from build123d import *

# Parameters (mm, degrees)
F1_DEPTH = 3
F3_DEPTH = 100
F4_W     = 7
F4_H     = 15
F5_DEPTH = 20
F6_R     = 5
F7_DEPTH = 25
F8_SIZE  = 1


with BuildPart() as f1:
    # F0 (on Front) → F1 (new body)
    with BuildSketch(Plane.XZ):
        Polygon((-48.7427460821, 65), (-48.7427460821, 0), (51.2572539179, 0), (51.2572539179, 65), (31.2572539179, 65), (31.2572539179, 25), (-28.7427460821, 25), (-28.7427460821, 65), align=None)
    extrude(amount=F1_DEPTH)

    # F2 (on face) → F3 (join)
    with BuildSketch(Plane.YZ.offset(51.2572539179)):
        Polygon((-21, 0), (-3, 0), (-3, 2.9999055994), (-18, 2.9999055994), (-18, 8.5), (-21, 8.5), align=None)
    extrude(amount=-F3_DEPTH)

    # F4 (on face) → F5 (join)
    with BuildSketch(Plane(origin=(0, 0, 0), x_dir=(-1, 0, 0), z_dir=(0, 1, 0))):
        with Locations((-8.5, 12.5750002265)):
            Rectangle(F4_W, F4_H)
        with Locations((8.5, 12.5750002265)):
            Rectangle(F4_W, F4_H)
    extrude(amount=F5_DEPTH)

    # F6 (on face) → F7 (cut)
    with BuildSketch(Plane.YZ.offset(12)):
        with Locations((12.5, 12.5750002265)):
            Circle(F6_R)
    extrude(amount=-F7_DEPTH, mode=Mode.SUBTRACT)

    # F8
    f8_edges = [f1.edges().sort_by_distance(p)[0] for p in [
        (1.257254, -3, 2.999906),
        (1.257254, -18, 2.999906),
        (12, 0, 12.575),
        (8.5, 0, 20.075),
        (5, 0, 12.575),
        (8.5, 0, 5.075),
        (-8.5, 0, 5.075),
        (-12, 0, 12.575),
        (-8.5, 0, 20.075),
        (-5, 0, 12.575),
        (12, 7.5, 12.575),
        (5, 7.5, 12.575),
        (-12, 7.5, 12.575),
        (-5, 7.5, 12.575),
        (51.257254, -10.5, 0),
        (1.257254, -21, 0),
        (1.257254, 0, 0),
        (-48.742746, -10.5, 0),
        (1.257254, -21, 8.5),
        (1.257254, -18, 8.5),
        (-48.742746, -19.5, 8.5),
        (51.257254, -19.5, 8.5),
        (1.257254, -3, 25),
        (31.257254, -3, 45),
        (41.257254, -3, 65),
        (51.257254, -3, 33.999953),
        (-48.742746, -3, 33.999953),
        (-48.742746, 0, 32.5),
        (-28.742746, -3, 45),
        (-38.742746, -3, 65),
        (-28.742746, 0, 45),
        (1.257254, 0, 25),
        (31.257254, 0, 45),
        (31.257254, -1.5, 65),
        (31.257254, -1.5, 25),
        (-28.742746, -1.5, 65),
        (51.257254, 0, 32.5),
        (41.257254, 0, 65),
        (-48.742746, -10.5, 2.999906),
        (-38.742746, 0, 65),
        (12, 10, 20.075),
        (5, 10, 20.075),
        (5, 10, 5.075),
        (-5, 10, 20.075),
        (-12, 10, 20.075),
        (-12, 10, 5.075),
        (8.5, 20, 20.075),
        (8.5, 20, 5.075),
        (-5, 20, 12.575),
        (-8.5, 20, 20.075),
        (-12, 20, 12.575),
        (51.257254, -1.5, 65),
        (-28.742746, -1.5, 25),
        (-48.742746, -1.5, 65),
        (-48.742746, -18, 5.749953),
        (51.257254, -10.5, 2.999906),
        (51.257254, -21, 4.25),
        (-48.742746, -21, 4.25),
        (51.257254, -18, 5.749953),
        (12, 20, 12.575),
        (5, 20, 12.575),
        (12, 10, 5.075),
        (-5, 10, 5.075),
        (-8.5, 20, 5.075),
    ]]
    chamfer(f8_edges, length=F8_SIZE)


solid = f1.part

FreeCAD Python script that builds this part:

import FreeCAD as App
import Part
import Sketcher

V = App.Vector


def add_polygon(sketch, points):
    """Adds a closed chain of lines whose ends are joined by coincident constraints."""
    first, n = sketch.GeometryCount, len(points)
    for a, b in zip(points, points[1:] + points[:1]):
        sketch.addGeometry(Part.LineSegment(App.Vector(*a, 0), App.Vector(*b, 0)), False)
    for i in range(n):
        sketch.addConstraint(Sketcher.Constraint("Coincident", first + i, 2, first + (i + 1) % n, 1))

doc = App.newDocument("Part")
params = doc.addObject("Spreadsheet::Sheet", "Params")
for row, (alias, value) in enumerate([
    ("sketch1_width", "100 mm"),
    ("sketch1_width2", "20 mm"),
    ("sketch1_height", "65 mm"),
    ("sketch1_height2", "40 mm"),
    ("pad1_length", "3 mm"),
    ("sketch2_width", "18 mm"),
    ("sketch2_width2", "15 mm"),
    ("sketch2_height", "8.5 mm"),
    ("pad2_length", "100 mm"),
    ("sketch3_width", "7 mm"),
    ("sketch3_height", "15 mm"),
    ("pad3_length", "20 mm"),
    ("sketch4_diameter", "10 mm"),
    ("pocket1_length", "25 mm"),
    ("chamfer_size", "1 mm"),
], start=1):
    params.set(f"A{row}", alias)
    params.set(f"B{row}", "=" + value)
    params.setAlias(f"B{row}", alias)

body = doc.addObject("PartDesign::Body", "Body")

sketch1 = body.newObject("Sketcher::SketchObject", "Sketch")
sketch1.AttachmentSupport = (doc.getObject("XZ_Plane"), [""])
sketch1.MapMode = "FlatFace"
add_polygon(sketch1, [(-49, 65), (-49, 0), (51, 0), (51, 65), (31, 65), (31, 25), (-29, 25), (-29, 65)])
sketch1.addConstraint(Sketcher.Constraint("Vertical", 0))
sketch1.addConstraint(Sketcher.Constraint("Horizontal", 1))
sketch1.addConstraint(Sketcher.Constraint("Vertical", 2))
sketch1.addConstraint(Sketcher.Constraint("Horizontal", 3))
sketch1.addConstraint(Sketcher.Constraint("Vertical", 4))
sketch1.addConstraint(Sketcher.Constraint("Horizontal", 5))
sketch1.addConstraint(Sketcher.Constraint("Vertical", 6))
sketch1.addConstraint(Sketcher.Constraint("Horizontal", 7))
sketch1.addConstraint(Sketcher.Constraint("PointOnObject", 0, 2, -1))
sketch1.addConstraint(Sketcher.Constraint("Horizontal", 3, 2, 6, 2))
sketch1.addConstraint(Sketcher.Constraint("Equal", 3, 7))
sketch1.addConstraint(Sketcher.Constraint("DistanceX", 1, 1, 1, 2, 100.0))
sketch1.addConstraint(Sketcher.Constraint("DistanceX", 3, 2, 3, 1, 20.0))
sketch1.addConstraint(Sketcher.Constraint("DistanceY", 0, 2, 0, 1, 65.0))
sketch1.addConstraint(Sketcher.Constraint("DistanceY", 4, 2, 4, 1, 40.0))
sketch1.addConstraint(Sketcher.Constraint("DistanceX", 0, 2, -1, 1, 48.742746))
sketch1.setExpression("Constraints[19]", "Params.sketch1_width")
sketch1.setExpression("Constraints[20]", "Params.sketch1_width2")
sketch1.setExpression("Constraints[21]", "Params.sketch1_height")
sketch1.setExpression("Constraints[22]", "Params.sketch1_height2")
pad1 = body.newObject("PartDesign::Pad", "Pad")
pad1.Profile = sketch1
pad1.setExpression("Length", "Params.pad1_length")

sketch2 = body.newObject("Sketcher::SketchObject", "Sketch001")
sketch2.AttachmentSupport = (doc.getObject("YZ_Plane"), [""])
sketch2.MapMode = "FlatFace"
sketch2.AttachmentOffset = App.Placement(V(0, 0, 51.257254), App.Rotation())
add_polygon(sketch2, [(-21, 0), (-3, 0), (-3, 3), (-18, 3), (-18, 8.5), (-21, 8.5)])
sketch2.addConstraint(Sketcher.Constraint("Horizontal", 0))
sketch2.addConstraint(Sketcher.Constraint("Vertical", 1))
sketch2.addConstraint(Sketcher.Constraint("Horizontal", 2))
sketch2.addConstraint(Sketcher.Constraint("Vertical", 3))
sketch2.addConstraint(Sketcher.Constraint("Horizontal", 4))
sketch2.addConstraint(Sketcher.Constraint("Vertical", 5))
sketch2.addConstraint(Sketcher.Constraint("PointOnObject", 0, 2, -1))
sketch2.addConstraint(Sketcher.Constraint("DistanceX", 0, 1, 0, 2, 18.0))
sketch2.addConstraint(Sketcher.Constraint("DistanceX", 2, 2, 2, 1, 15.0))
sketch2.addConstraint(Sketcher.Constraint("DistanceY", 5, 2, 5, 1, 8.5))
sketch2.addConstraint(Sketcher.Constraint("DistanceX", 0, 2, -1, 1, 3.0))
sketch2.addConstraint(Sketcher.Constraint("DistanceY", 1, 1, 1, 2, 2.999906))
sketch2.setExpression("Constraints[13]", "Params.sketch2_width")
sketch2.setExpression("Constraints[14]", "Params.sketch2_width2")
sketch2.setExpression("Constraints[15]", "Params.sketch2_height")
pad2 = body.newObject("PartDesign::Pad", "Pad001")
pad2.Profile = sketch2
pad2.setExpression("Length", "Params.pad2_length")
pad2.Reversed = True

sketch3 = body.newObject("Sketcher::SketchObject", "Sketch002")
sketch3.AttachmentSupport = (doc.getObject("XZ_Plane"), [""])
sketch3.MapMode = "FlatFace"
add_polygon(sketch3, [(12, 20), (12, 5), (5, 5), (5, 20)])
add_polygon(sketch3, [(-5, 20), (-5, 5), (-12, 5), (-12, 20)])
sketch3.addConstraint(Sketcher.Constraint("Vertical", 0))
sketch3.addConstraint(Sketcher.Constraint("Horizontal", 1))
sketch3.addConstraint(Sketcher.Constraint("Vertical", 2))
sketch3.addConstraint(Sketcher.Constraint("Horizontal", 3))
sketch3.addConstraint(Sketcher.Constraint("Vertical", 4))
sketch3.addConstraint(Sketcher.Constraint("Horizontal", 5))
sketch3.addConstraint(Sketcher.Constraint("Vertical", 6))
sketch3.addConstraint(Sketcher.Constraint("Horizontal", 7))
sketch3.addConstraint(Sketcher.Constraint("Symmetric", 1, 2, 4, 2, -2))
sketch3.addConstraint(Sketcher.Constraint("Symmetric", 3, 2, 6, 2, -2))
sketch3.addConstraint(Sketcher.Constraint("DistanceX", 1, 2, 1, 1, 7.0))
sketch3.addConstraint(Sketcher.Constraint("DistanceY", 0, 2, 0, 1, 15.0))
sketch3.addConstraint(Sketcher.Constraint("DistanceX", -1, 1, 0, 2, 12.0))
sketch3.addConstraint(Sketcher.Constraint("DistanceY", -1, 1, 0, 2, 5.075))
sketch3.setExpression("Constraints[18]", "Params.sketch3_width")
sketch3.setExpression("Constraints[19]", "Params.sketch3_height")
pad3 = body.newObject("PartDesign::Pad", "Pad002")
pad3.Profile = sketch3
pad3.setExpression("Length", "Params.pad3_length")
pad3.Reversed = True

sketch4 = body.newObject("Sketcher::SketchObject", "Sketch003")
sketch4.AttachmentSupport = (doc.getObject("YZ_Plane"), [""])
sketch4.MapMode = "FlatFace"
sketch4.AttachmentOffset = App.Placement(V(0, 0, 12), App.Rotation())
sketch4.addGeometry(Part.Circle(V(12, 13, 0), V(0, 0, 1), 5), False)
sketch4.addConstraint(Sketcher.Constraint("Diameter", 0, 10.0))
sketch4.addConstraint(Sketcher.Constraint("DistanceX", -1, 1, 0, 3, 12.5))
sketch4.addConstraint(Sketcher.Constraint("DistanceY", -1, 1, 0, 3, 12.575))
sketch4.setExpression("Constraints[0]", "Params.sketch4_diameter")
pocket1 = body.newObject("PartDesign::Pocket", "Pocket")
pocket1.Profile = sketch4
pocket1.setExpression("Length", "Params.pocket1_length")
doc.recompute()

chamfer = body.newObject("PartDesign::Chamfer", "Chamfer")
chamfer.Base = (pocket1, ["Edge1"])
chamfer.UseAllEdges = True
chamfer.setExpression("Size", "Params.chamfer_size")

doc.recompute()
